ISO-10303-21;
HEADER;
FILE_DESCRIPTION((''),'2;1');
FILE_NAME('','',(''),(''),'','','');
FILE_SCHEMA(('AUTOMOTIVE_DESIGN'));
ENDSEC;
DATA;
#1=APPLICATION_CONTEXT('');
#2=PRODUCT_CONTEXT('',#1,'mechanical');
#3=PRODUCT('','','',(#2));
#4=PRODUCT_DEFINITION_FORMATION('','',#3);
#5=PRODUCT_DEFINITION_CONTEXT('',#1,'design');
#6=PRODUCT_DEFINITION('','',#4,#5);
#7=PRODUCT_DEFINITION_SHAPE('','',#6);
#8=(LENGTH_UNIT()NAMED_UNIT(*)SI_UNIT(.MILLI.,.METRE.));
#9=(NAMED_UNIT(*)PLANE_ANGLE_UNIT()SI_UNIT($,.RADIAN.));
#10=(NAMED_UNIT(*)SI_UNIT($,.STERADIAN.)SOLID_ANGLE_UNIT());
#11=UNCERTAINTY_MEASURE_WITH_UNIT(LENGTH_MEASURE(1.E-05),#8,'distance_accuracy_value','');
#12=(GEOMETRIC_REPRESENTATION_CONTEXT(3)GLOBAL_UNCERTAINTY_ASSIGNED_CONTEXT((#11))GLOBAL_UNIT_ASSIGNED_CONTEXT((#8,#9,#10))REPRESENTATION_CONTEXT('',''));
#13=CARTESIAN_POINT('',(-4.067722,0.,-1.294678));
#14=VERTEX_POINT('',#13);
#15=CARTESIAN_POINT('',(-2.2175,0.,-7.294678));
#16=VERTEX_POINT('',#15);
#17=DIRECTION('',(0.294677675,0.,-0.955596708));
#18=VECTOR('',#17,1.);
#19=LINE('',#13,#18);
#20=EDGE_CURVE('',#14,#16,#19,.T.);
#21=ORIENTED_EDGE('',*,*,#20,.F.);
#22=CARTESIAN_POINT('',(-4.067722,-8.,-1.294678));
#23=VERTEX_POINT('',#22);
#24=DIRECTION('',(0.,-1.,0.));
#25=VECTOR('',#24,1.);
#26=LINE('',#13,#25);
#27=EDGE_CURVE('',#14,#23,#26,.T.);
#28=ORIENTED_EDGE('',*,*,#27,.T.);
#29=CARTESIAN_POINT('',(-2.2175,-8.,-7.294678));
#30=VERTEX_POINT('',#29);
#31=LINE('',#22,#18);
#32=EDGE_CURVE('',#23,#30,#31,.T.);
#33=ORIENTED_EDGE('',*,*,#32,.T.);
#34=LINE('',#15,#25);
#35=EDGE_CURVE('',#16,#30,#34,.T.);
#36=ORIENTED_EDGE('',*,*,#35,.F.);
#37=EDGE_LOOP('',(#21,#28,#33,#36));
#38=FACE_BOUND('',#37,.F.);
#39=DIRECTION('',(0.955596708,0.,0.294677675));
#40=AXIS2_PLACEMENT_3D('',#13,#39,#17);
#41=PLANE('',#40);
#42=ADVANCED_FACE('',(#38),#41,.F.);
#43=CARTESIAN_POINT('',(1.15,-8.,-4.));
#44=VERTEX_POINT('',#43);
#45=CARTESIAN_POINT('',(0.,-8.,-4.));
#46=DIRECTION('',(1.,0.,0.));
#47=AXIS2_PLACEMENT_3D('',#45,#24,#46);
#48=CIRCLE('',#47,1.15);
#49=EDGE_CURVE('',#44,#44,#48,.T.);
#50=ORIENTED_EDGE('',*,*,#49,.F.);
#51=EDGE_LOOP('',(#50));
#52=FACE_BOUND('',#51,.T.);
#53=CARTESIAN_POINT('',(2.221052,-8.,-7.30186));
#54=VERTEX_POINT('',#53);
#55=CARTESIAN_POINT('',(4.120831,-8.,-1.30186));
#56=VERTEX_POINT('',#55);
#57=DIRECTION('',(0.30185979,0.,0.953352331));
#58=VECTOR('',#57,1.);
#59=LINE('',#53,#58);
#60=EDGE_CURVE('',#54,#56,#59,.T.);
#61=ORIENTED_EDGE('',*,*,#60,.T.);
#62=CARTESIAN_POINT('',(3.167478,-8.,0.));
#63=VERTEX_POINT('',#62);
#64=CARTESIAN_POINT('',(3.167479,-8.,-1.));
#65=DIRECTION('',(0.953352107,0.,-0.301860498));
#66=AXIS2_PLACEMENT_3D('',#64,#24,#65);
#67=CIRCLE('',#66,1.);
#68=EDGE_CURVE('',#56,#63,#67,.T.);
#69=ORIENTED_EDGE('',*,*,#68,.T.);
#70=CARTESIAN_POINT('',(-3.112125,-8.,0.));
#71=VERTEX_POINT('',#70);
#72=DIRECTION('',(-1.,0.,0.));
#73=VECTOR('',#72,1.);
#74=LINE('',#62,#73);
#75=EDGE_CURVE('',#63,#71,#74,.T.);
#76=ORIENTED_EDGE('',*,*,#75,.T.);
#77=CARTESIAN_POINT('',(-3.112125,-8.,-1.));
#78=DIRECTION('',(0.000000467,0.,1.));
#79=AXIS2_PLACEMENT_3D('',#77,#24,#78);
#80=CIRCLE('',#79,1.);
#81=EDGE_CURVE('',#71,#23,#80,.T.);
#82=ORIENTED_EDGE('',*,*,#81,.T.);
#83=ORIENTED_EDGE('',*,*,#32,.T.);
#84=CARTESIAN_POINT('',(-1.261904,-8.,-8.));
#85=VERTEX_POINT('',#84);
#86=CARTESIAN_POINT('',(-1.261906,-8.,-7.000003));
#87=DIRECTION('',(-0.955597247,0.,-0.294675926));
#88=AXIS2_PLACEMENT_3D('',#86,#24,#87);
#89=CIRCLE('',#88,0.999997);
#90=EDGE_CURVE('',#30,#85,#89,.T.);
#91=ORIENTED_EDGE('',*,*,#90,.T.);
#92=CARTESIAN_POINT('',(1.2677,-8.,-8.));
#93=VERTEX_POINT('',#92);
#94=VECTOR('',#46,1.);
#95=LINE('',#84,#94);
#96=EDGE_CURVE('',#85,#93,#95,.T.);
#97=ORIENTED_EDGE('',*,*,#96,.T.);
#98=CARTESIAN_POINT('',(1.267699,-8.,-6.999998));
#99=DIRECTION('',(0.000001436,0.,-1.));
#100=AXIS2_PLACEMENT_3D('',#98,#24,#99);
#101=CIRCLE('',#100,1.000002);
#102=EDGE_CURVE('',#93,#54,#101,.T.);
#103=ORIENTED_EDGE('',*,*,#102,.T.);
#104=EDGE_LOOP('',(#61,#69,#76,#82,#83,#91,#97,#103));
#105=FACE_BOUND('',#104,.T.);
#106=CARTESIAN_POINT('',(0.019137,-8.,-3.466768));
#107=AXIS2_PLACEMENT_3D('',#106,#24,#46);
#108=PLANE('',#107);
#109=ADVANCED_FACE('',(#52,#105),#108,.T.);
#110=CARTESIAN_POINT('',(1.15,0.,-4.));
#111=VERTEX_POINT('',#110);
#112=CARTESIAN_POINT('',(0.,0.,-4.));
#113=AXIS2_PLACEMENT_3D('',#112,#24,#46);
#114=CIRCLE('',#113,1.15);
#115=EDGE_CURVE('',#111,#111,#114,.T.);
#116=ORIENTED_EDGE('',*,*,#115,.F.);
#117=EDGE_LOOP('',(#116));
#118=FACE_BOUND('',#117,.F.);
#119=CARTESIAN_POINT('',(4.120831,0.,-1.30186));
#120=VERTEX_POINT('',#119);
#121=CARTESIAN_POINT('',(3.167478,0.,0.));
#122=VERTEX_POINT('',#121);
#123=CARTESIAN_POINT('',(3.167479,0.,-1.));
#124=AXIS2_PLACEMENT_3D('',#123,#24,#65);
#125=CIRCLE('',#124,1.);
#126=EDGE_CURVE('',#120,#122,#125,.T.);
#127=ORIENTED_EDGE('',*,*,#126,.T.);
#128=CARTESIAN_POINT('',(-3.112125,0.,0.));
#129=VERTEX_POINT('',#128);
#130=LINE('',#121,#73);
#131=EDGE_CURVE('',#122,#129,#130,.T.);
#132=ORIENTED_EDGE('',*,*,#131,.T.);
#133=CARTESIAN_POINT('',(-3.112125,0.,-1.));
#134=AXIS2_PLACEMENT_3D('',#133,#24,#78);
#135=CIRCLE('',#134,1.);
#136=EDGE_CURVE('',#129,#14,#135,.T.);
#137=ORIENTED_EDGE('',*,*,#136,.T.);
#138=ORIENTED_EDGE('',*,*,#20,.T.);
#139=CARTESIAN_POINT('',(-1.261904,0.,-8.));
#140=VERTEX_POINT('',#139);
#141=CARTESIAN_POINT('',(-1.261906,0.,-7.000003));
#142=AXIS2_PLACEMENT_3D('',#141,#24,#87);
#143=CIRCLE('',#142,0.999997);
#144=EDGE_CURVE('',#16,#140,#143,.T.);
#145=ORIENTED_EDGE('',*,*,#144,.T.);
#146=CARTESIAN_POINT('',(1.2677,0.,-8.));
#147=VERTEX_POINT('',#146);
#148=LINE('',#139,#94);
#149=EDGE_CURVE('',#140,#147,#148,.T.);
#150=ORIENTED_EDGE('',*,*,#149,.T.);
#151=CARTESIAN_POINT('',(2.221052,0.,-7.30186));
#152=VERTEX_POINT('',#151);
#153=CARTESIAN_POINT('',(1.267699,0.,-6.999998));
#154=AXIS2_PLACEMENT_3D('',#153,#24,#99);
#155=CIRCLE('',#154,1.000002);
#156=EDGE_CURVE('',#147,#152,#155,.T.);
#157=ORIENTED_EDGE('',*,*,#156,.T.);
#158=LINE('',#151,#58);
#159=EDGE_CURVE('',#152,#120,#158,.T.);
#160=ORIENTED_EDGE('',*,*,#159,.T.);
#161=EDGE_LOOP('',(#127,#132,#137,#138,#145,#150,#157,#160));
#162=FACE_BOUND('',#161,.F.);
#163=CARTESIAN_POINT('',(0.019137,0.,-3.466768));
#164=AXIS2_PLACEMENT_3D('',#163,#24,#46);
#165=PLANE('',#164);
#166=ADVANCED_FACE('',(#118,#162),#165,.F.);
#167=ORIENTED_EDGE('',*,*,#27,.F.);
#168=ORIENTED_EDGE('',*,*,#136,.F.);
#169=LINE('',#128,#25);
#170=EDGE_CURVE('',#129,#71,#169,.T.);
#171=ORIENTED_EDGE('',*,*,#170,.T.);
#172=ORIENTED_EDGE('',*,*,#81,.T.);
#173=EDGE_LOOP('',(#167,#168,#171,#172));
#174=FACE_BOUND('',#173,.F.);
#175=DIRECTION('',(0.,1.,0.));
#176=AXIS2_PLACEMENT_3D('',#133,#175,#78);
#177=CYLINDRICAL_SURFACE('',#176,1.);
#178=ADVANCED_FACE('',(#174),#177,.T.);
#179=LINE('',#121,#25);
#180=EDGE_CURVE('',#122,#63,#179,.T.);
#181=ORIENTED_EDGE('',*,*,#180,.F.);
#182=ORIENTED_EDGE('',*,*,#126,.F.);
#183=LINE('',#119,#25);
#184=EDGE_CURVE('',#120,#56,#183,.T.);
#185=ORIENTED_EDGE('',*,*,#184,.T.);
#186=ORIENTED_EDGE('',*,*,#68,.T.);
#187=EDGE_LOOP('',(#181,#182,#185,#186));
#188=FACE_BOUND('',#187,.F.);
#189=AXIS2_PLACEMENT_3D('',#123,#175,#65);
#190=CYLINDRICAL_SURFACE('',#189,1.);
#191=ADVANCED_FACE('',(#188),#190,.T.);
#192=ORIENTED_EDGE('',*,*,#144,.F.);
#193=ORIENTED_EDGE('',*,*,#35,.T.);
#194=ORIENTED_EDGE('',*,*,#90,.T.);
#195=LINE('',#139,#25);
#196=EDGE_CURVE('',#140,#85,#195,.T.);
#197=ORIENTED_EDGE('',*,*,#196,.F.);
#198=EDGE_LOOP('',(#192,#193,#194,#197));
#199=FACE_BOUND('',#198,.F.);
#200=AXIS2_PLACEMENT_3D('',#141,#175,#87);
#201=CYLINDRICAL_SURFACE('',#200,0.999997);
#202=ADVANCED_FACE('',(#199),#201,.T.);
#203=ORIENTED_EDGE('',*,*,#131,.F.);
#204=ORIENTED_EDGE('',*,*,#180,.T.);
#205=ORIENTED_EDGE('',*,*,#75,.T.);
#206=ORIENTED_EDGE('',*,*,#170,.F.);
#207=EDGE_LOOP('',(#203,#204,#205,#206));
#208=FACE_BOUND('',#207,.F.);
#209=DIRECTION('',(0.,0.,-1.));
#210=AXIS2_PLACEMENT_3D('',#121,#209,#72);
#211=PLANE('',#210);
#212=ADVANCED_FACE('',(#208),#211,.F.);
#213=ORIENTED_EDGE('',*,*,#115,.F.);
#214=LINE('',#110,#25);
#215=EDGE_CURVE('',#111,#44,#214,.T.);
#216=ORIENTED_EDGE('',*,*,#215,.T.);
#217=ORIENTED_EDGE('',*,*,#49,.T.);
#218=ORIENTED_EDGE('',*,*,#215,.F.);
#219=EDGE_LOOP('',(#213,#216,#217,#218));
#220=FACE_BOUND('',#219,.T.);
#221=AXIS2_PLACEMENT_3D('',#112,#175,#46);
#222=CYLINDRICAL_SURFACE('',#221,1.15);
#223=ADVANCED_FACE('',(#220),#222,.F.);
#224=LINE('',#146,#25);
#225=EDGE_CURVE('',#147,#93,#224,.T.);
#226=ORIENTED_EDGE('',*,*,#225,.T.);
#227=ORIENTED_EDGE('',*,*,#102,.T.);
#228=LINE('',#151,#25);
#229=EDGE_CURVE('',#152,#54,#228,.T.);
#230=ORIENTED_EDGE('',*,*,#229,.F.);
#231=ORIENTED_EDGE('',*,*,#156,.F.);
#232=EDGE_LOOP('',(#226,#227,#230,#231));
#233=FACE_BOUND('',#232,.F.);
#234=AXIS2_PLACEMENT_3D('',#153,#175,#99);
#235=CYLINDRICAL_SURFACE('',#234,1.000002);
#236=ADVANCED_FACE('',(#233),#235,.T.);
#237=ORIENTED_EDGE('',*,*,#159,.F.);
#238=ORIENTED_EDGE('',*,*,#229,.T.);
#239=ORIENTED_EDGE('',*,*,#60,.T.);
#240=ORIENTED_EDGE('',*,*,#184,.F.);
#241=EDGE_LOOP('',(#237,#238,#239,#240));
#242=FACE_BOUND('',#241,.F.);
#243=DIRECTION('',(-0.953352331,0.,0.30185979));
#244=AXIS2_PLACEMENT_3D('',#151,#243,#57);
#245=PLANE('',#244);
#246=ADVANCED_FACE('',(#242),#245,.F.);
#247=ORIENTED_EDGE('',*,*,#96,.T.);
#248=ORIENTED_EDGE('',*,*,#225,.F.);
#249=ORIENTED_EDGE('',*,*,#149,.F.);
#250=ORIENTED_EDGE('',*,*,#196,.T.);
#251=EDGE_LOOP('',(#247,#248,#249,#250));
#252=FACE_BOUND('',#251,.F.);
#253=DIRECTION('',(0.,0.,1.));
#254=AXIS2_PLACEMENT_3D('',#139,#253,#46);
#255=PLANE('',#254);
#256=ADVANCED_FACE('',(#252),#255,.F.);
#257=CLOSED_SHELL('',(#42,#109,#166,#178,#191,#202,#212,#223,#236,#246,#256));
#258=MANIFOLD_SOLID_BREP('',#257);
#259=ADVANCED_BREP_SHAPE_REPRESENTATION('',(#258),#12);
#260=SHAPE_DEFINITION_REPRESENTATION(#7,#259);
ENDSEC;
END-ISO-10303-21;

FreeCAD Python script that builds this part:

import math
import FreeCAD as App
import Part
import Sketcher
Q = App.Units.Quantity

doc = App.newDocument("Part")
body = doc.addObject("PartDesign::Body", "Body")

sketch1 = doc.addObject("Sketcher::SketchObject", "Sketch")
body.addObject(sketch1)
sketch1.AttachmentSupport = (doc.XZ_Plane, [""])
sketch1.MapMode = "FlatFace"
sketch1.addGeometry([
    Part.LineSegment(App.Vector(3.167478, 0, 0), App.Vector(-3.112125, 0, 0)),
    Part.ArcOfCircle(Part.Circle(App.Vector(-3.112125, -1, 0), App.Vector(0, 0, 1), 1), math.radians(89.999973), math.radians(197.138234)),
    Part.LineSegment(App.Vector(-4.067722, -1.294678, 0), App.Vector(-2.2175, -7.294678, 0)),
    Part.ArcOfCircle(Part.Circle(App.Vector(-1.261906, -7.000003, 0), App.Vector(0, 0, 1), 0.999997), math.radians(-162.861895), math.radians(-89.99991)),
    Part.LineSegment(App.Vector(-1.261904, -8, 0), App.Vector(1.2677, -8, 0)),
    Part.ArcOfCircle(Part.Circle(App.Vector(1.267699, -6.999998, 0), App.Vector(0, 0, 1), 1.000002), math.radians(-89.999918), math.radians(-17.56942)),
    Part.LineSegment(App.Vector(2.221052, -7.30186, 0), App.Vector(4.120831, -1.30186, 0)),
    Part.ArcOfCircle(Part.Circle(App.Vector(3.167479, -1, 0), App.Vector(0, 0, 1), 1), math.radians(-17.569383), math.radians(90.000072)),
    Part.Circle(App.Vector(0, -4, 0), App.Vector(0, 0, 1), 1.15),
], False)
sketch1.addConstraint([
    Sketcher.Constraint("Tangent", 0, 2, 1, 1),
    Sketcher.Constraint("Tangent", 1, 2, 2, 1),
    Sketcher.Constraint("Tangent", 2, 2, 3, 1),
    Sketcher.Constraint("Tangent", 3, 2, 4, 1),
    Sketcher.Constraint("Tangent", 4, 2, 5, 1),
    Sketcher.Constraint("Tangent", 5, 2, 6, 1),
    Sketcher.Constraint("Tangent", 6, 2, 7, 1),
    Sketcher.Constraint("Tangent", 7, 2, 0, 1),
    Sketcher.Constraint("Horizontal", 0),
    Sketcher.Constraint("Horizontal", 4),
    Sketcher.Constraint("Equal", 1, 5),
    Sketcher.Constraint("Equal", 5, 7),
    Sketcher.Constraint("PointOnObject", 8, 3, -2),
    Sketcher.Constraint("PointOnObject", 0, 2, -1),
    Sketcher.Constraint("Radius", 1, Q("1 mm")),
    Sketcher.Constraint("Diameter", 8, Q("2.3 mm")),
    Sketcher.Constraint("DistanceY", 5, 3, -1, 1, Q("6.999998 mm")),
    Sketcher.Constraint("DistanceY", 8, 3, -1, 1, Q("4 mm")),
    Sketcher.Constraint("DistanceY", 2, 2, 1, 2, Q("6 mm")),
    Sketcher.Constraint("Distance", 2, Q("6.278799 mm")),
    Sketcher.Constraint("DistanceX", -1, 1, 5, 3, Q("1.267699 mm")),
    Sketcher.Constraint("DistanceX", 2, 2, -1, 1, Q("2.2175 mm")),
    Sketcher.Constraint("DistanceX", 1, 2, 7, 3, Q("7.235201 mm")),
])
pad1 = doc.addObject("PartDesign::Pad", "Pad")
body.addObject(pad1)
pad1.Profile = sketch1
pad1.Length = 8

doc.recompute()
